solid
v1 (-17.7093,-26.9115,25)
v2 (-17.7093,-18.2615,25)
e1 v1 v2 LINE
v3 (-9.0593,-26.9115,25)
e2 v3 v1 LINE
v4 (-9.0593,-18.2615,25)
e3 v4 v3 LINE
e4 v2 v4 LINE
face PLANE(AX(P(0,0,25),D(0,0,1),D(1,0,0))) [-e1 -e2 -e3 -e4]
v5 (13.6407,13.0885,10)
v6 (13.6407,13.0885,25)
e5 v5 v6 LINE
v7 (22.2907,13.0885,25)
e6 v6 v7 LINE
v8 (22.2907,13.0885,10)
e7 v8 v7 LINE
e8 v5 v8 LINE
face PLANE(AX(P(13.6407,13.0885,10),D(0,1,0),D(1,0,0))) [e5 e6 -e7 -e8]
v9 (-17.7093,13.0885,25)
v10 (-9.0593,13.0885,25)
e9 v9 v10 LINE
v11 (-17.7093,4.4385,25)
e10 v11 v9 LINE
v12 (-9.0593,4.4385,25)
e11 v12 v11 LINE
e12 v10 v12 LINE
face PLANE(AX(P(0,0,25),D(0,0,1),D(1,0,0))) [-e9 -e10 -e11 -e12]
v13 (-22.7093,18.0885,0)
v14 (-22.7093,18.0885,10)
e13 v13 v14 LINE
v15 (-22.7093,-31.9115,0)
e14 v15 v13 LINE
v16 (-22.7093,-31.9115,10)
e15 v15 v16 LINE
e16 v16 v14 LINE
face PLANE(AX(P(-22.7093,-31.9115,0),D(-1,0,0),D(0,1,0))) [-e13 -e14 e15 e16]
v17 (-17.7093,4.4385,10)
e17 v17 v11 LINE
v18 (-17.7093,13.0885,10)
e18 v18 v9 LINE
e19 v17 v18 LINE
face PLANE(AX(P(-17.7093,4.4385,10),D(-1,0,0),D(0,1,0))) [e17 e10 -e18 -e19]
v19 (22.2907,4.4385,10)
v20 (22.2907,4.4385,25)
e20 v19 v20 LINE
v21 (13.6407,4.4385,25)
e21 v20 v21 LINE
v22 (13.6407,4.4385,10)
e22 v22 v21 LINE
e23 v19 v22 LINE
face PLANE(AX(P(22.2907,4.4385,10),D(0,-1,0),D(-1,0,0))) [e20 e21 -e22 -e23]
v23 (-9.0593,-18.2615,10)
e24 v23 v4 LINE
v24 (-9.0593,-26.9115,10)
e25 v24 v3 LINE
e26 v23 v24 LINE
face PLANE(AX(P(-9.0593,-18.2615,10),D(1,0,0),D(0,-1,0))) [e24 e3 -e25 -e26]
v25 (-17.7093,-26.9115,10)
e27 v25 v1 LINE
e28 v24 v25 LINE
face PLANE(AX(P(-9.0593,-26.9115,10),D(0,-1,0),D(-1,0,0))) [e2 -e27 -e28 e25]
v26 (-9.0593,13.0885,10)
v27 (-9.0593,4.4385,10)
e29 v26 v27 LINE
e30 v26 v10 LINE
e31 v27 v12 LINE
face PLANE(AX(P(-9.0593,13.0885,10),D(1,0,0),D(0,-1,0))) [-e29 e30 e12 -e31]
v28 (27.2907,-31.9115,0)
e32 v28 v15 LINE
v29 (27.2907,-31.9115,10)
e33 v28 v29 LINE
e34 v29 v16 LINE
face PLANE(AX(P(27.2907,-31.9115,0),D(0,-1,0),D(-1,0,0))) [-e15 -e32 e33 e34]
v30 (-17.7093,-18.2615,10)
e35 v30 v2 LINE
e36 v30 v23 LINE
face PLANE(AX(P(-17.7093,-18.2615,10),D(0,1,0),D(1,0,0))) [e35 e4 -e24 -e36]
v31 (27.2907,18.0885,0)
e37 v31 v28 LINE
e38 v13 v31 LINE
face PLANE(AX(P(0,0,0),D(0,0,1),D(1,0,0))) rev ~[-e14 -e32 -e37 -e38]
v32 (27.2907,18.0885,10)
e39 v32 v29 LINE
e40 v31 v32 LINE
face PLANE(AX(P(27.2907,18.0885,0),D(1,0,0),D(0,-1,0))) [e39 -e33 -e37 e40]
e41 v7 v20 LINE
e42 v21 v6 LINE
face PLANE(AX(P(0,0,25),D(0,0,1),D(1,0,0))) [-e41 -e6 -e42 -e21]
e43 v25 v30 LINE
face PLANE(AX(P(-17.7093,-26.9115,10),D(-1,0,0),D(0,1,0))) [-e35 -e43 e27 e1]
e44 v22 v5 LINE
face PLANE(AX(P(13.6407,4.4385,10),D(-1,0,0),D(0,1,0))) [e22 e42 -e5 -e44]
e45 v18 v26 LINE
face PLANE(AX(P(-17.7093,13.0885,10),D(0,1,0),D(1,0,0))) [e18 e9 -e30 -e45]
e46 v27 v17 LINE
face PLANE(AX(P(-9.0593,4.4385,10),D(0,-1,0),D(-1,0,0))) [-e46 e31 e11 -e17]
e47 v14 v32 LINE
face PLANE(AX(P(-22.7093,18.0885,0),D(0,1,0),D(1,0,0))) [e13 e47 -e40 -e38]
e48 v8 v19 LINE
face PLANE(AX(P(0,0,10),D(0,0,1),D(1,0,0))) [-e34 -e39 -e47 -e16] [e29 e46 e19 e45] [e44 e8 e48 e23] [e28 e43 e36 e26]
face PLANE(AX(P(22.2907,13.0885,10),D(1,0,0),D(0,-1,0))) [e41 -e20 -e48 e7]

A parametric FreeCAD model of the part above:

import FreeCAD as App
import Part
import Sketcher

doc = App.newDocument("Part")
params = doc.addObject("Spreadsheet::Sheet", "Params")
for row, (alias, value) in enumerate([
    ("sketch1_width", "50 mm"),
    ("pad1_length", "10 mm"),
    ("sketch2_width", "8.65 mm"),
    ("pad2_length", "15 mm"),
], start=1):
    params.set(f"A{row}", alias)
    params.set(f"B{row}", "=" + value)
    params.setAlias(f"B{row}", alias)

body = doc.addObject("PartDesign::Body", "Body")

# Sketch on XY plane
sketch1 = doc.addObject("Sketcher::SketchObject", "Sketch")
body.addObject(sketch1)
sketch1.AttachmentSupport = (doc.XY_Plane, [""])
sketch1.MapMode = "FlatFace"
sketch1.addGeometry([
    Part.LineSegment(App.Vector(27, 18, 0), App.Vector(-23, 18, 0)),
    Part.LineSegment(App.Vector(-23, 18, 0), App.Vector(-23, -32, 0)),
    Part.LineSegment(App.Vector(-23, -32, 0), App.Vector(27, -32, 0)),
    Part.LineSegment(App.Vector(27, -32, 0), App.Vector(27, 18, 0)),
], False)
sketch1.addConstraint([
    Sketcher.Constraint("Coincident", 0, 2, 1, 1),
    Sketcher.Constraint("Coincident", 1, 2, 2, 1),
    Sketcher.Constraint("Coincident", 2, 2, 3, 1),
    Sketcher.Constraint("Coincident", 3, 2, 0, 1),
    Sketcher.Constraint("Horizontal", 0),
    Sketcher.Constraint("Vertical", 1),
    Sketcher.Constraint("Horizontal", 2),
    Sketcher.Constraint("Vertical", 3),
    Sketcher.Constraint("Equal", 2, 1),
    Sketcher.Constraint("DistanceX", 0, 2, 0, 1, 50.0),
    Sketcher.Constraint("DistanceX", 0, 2, -1, 1, 22.7093),
    Sketcher.Constraint("DistanceY", -1, 1, 0, 2, 18.0885),
])
sketch1.setExpression("Constraints[9]", "Params.sketch1_width")
pad1 = doc.addObject("PartDesign::Pad", "Pad")
body.addObject(pad1)
pad1.Profile = sketch1
pad1.setExpression("Length", "Params.pad1_length")

# Sketch on XY plane
sketch2 = doc.addObject("Sketcher::SketchObject", "Sketch001")
body.addObject(sketch2)
sketch2.AttachmentSupport = (doc.XY_Plane, [""])
sketch2.MapMode = "FlatFace"
sketch2.AttachmentOffset = App.Placement(App.Vector(0, 0, 10), App.Rotation())
sketch2.addGeometry([
    Part.LineSegment(App.Vector(-9, 13, 0), App.Vector(-18, 13, 0)),  # 0
    Part.LineSegment(App.Vector(-18, 13, 0), App.Vector(-18, 4, 0)),  # 1
    Part.LineSegment(App.Vector(-18, 4, 0), App.Vector(-9, 4, 0)),  # 2
    Part.LineSegment(App.Vector(-9, 4, 0), App.Vector(-9, 13, 0)),  # 3
    Part.LineSegment(App.Vector(22, 13, 0), App.Vector(14, 13, 0)),  # 4
    Part.LineSegment(App.Vector(14, 13, 0), App.Vector(14, 4, 0)),  # 5
    Part.LineSegment(App.Vector(14, 4, 0), App.Vector(22, 4, 0)),  # 6
    Part.LineSegment(App.Vector(22, 4, 0), App.Vector(22, 13, 0)),  # 7
    Part.LineSegment(App.Vector(-9, -18, 0), App.Vector(-18, -18, 0)),  # 8
    Part.LineSegment(App.Vector(-18, -18, 0), App.Vector(-18, -27, 0)),  # 9
    Part.LineSegment(App.Vector(-18, -27, 0), App.Vector(-9, -27, 0)),  # 10
    Part.LineSegment(App.Vector(-9, -27, 0), App.Vector(-9, -18, 0)),  # 11
], False)
sketch2.addConstraint([
    Sketcher.Constraint("Coincident", 0, 2, 1, 1),
    Sketcher.Constraint("Coincident", 1, 2, 2, 1),
    Sketcher.Constraint("Coincident", 2, 2, 3, 1),
    Sketcher.Constraint("Coincident", 3, 2, 0, 1),
    Sketcher.Constraint("Coincident", 4, 2, 5, 1),
    Sketcher.Constraint("Coincident", 5, 2, 6, 1),
    Sketcher.Constraint("Coincident", 6, 2, 7, 1),
    Sketcher.Constraint("Coincident", 7, 2, 4, 1),
    Sketcher.Constraint("Coincident", 8, 2, 9, 1),
    Sketcher.Constraint("Coincident", 9, 2, 10, 1),
    Sketcher.Constraint("Coincident", 10, 2, 11, 1),
    Sketcher.Constraint("Coincident", 11, 2, 8, 1),
    Sketcher.Constraint("Horizontal", 0),
    Sketcher.Constraint("Vertical", 1),
    Sketcher.Constraint("Horizontal", 2),
    Sketcher.Constraint("Vertical", 3),
    Sketcher.Constraint("Horizontal", 4),
    Sketcher.Constraint("Vertical", 5),
    Sketcher.Constraint("Horizontal", 6),
    Sketcher.Constraint("Vertical", 7),
    Sketcher.Constraint("Horizontal", 8),
    Sketcher.Constraint("Vertical", 9),
    Sketcher.Constraint("Horizontal", 10),
    Sketcher.Constraint("Vertical", 11),
    Sketcher.Constraint("Horizontal", 3, 2, 4, 2),
    Sketcher.Constraint("Horizontal", 2, 2, 5, 2),
    Sketcher.Constraint("Vertical", 1, 2, 8, 2),
    Sketcher.Constraint("Vertical", 3, 2, 10, 2),
    Sketcher.Constraint("Equal", 2, 4),
    Sketcher.Constraint("Equal", 10, 1),
    Sketcher.Constraint("Equal", 7, 9),
    Sketcher.Constraint("DistanceX", 0, 2, 0, 1, 8.65),
    Sketcher.Constraint("DistanceX", 1, 2, 6, 2, 40.0),
    Sketcher.Constraint("DistanceY", 9, 2, 0, 2, 40.0),
    Sketcher.Constraint("DistanceX", 0, 2, -1, 1, 17.7093),
    Sketcher.Constraint("DistanceY", -1, 1, 0, 2, 13.0885),
])
sketch2.setExpression("Constraints[31]", "Params.sketch2_width")
pad2 = doc.addObject("PartDesign::Pad", "Pad001")
body.addObject(pad2)
pad2.Profile = sketch2
pad2.setExpression("Length", "Params.pad2_length")

doc.recompute()
